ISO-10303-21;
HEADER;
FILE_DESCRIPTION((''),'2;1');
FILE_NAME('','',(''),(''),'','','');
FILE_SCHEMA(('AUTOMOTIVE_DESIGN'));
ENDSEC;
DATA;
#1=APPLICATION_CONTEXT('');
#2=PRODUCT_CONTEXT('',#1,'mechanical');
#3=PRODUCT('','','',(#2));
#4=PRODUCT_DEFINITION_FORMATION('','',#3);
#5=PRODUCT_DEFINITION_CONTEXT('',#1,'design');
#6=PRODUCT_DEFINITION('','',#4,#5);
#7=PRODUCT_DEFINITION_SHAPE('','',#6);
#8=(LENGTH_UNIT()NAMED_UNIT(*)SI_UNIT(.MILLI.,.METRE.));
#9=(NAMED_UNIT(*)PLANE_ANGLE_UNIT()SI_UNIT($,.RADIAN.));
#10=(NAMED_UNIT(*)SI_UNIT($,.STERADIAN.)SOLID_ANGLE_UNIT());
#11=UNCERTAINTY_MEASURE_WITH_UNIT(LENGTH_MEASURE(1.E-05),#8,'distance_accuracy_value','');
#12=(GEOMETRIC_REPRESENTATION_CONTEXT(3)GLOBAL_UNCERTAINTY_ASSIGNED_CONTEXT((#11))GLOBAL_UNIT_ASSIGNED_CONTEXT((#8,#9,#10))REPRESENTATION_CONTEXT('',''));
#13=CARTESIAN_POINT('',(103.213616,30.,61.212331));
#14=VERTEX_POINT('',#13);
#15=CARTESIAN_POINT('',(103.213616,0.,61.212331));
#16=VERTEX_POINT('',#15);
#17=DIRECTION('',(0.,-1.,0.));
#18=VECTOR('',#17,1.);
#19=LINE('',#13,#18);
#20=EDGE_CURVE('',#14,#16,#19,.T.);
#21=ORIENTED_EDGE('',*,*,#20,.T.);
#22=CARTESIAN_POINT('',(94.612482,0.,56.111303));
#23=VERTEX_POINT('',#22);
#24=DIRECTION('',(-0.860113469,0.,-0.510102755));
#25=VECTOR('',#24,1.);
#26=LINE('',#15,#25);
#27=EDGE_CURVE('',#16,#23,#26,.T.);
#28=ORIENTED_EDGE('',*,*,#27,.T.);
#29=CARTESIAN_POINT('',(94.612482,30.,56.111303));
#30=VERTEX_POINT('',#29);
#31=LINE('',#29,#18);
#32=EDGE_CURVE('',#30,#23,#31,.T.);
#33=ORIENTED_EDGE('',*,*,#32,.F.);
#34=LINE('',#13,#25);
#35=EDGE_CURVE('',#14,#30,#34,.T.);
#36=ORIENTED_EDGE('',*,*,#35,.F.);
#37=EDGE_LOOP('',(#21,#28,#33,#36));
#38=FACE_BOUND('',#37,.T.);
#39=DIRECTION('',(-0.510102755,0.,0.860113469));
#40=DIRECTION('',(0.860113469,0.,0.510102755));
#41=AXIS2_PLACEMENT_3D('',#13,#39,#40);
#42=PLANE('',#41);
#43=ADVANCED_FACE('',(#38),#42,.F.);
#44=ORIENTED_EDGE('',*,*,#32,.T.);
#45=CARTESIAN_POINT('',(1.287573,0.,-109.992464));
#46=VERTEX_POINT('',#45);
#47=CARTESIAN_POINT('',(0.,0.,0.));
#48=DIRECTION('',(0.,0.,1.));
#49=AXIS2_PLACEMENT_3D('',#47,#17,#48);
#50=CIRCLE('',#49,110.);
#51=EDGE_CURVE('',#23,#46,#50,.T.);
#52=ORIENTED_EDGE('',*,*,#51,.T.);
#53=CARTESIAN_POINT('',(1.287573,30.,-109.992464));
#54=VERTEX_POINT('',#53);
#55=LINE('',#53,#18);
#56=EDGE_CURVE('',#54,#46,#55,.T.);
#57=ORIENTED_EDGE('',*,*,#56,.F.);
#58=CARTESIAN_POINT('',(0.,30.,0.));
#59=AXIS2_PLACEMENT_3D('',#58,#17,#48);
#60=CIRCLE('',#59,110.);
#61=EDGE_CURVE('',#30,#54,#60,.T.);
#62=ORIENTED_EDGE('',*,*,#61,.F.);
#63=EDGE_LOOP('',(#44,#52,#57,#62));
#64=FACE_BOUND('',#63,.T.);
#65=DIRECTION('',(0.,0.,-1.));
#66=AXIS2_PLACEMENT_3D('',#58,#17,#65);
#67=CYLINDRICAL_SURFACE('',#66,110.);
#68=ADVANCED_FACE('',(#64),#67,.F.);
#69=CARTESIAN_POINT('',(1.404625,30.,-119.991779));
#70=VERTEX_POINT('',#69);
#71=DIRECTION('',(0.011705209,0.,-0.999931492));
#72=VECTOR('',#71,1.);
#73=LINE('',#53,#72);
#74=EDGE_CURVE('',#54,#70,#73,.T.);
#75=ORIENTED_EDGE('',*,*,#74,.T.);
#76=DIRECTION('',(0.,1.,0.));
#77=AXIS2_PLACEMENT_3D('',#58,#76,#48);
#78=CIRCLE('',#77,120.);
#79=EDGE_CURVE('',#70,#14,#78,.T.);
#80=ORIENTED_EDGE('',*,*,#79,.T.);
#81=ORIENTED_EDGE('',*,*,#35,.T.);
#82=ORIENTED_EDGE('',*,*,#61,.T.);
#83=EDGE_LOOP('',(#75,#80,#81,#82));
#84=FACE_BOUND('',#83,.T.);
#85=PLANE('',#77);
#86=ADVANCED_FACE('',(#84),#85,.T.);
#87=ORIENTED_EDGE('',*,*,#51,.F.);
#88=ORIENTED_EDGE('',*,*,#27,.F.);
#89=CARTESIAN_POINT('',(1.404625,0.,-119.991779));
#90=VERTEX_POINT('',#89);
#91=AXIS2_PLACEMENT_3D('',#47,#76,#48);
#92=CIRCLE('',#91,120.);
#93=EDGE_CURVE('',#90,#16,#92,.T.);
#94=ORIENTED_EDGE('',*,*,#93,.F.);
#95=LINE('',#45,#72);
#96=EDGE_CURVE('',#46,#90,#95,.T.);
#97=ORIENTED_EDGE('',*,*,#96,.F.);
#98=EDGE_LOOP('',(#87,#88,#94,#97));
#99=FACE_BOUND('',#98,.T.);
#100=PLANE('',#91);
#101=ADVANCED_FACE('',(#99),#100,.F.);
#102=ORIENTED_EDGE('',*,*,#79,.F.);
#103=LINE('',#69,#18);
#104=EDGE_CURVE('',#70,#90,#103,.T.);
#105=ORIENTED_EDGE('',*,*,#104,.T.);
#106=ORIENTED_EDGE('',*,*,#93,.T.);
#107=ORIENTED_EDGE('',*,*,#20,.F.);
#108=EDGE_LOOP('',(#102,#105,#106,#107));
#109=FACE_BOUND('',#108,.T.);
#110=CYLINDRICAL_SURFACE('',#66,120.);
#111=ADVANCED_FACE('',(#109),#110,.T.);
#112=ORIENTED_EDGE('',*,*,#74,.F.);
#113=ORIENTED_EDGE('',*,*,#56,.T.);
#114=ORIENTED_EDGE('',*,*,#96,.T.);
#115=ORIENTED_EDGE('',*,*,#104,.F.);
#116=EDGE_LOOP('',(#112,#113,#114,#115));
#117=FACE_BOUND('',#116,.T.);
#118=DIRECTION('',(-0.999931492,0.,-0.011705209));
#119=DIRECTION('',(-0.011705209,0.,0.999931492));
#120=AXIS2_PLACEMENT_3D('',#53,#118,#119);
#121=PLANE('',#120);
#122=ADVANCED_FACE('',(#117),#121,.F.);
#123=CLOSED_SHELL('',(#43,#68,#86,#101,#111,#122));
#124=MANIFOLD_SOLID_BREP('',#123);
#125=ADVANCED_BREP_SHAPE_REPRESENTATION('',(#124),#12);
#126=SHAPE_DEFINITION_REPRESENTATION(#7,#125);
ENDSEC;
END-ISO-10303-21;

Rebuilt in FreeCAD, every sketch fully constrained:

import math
import FreeCAD as App
import Part
import Sketcher
from FreeCAD import Vector
Q = App.Units.Quantity

doc = App.newDocument("Part")
body = doc.addObject("PartDesign::Body", "Body")

# Sketch on XZ plane
sketch1 = doc.addObject("Sketcher::SketchObject", "Sketch")
body.addObject(sketch1)
sketch1.AttachmentSupport = (doc.XZ_Plane, [""])
sketch1.MapMode = "FlatFace"
sketch1.addGeometry(Part.LineSegment(Vector(1, -110, 0), Vector(1, -120, 0)), False)
sketch1.addGeometry(Part.ArcOfCircle(Part.Circle(Vector(0, 0, 0), Vector(0, 0, 1), 120), math.radians(31), math.radians(271)), False)
sketch1.addGeometry(Part.LineSegment(Vector(103, 61, 0), Vector(95, 56, 0)), False)
sketch1.addGeometry(Part.ArcOfCircle(Part.Circle(Vector(0, 0, 0), Vector(0, 0, 1), 110), math.radians(31), math.radians(271)), False)
sketch1.addConstraint(Sketcher.Constraint("Coincident", 0, 2, 1, 2))
sketch1.addConstraint(Sketcher.Constraint("Coincident", 1, 1, 2, 1))
sketch1.addConstraint(Sketcher.Constraint("Coincident", 2, 2, 3, 1))
sketch1.addConstraint(Sketcher.Constraint("Coincident", 3, 2, 0, 1))
sketch1.addConstraint(Sketcher.Constraint("Coincident", 1, 3, -1, 1))
sketch1.addConstraint(Sketcher.Constraint("Coincident", 3, 3, -1, 1))
sketch1.addConstraint(Sketcher.Constraint("Radius", 1, Q("120 mm")))
sketch1.addConstraint(Sketcher.Constraint("Radius", 3, Q("110 mm")))
sketch1.addConstraint(Sketcher.Constraint("DistanceY", 0, 2, -1, 1, Q("119.991779 mm")))
sketch1.addConstraint(Sketcher.Constraint("DistanceY", -1, 1, 1, 1, Q("61.212331 mm")))
sketch1.addConstraint(Sketcher.Constraint("DistanceX", -1, 1, 2, 2, Q("94.612482 mm")))
sketch1.addConstraint(Sketcher.Constraint("DistanceX", 3, 2, 2, 2, Q("93.324909 mm")))
pad1 = doc.addObject("PartDesign::Pad", "Pad")
body.addObject(pad1)
pad1.Profile = sketch1
pad1.Length = 30
pad1.Reversed = True

doc.recompute()
